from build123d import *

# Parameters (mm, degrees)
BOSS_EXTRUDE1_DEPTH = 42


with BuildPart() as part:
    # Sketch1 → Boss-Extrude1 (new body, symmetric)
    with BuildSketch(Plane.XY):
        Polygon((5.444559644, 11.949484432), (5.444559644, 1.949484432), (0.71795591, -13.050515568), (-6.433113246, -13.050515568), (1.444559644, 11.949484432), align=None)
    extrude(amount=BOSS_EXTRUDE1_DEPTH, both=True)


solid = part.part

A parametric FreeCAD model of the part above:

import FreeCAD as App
import Part
import Sketcher
Q = App.Units.Quantity

doc = App.newDocument("Part")
params = doc.addObject("Spreadsheet::Sheet", "Params")
for row, (alias, value) in enumerate([
    ("sketch1_width", "4 mm"),
    ("sketch1_height", "10 mm"),
    ("pad1_length", "84 mm"),
], start=1):
    params.set(f"A{row}", alias)
    params.set(f"B{row}", "=" + value)
    params.setAlias(f"B{row}", alias)

body = doc.addObject("PartDesign::Body", "Body")

# Sketch on XY plane
sketch1 = doc.addObject("Sketcher::SketchObject", "Sketch")
body.addObject(sketch1)
sketch1.AttachmentSupport = (doc.XY_Plane, [""])
sketch1.MapMode = "FlatFace"
sketch1.addGeometry(Part.LineSegment(App.Vector(5.44456, 1.949484, 0), App.Vector(5.44456, 11.949484, 0)), False)
sketch1.addGeometry(Part.LineSegment(App.Vector(5.44456, 11.949484, 0), App.Vector(1.44456, 11.949484, 0)), False)
sketch1.addGeometry(Part.LineSegment(App.Vector(1.44456, 11.949484, 0), App.Vector(-6.433113, -13.050516, 0)), False)
sketch1.addGeometry(Part.LineSegment(App.Vector(-6.433113, -13.050516, 0), App.Vector(0.717956, -13.050516, 0)), False)
sketch1.addGeometry(Part.LineSegment(App.Vector(0.717956, -13.050516, 0), App.Vector(5.44456, 1.949484, 0)), False)
sketch1.addConstraint(Sketcher.Constraint("Coincident", 0, 2, 1, 1))
sketch1.addConstraint(Sketcher.Constraint("Coincident", 1, 2, 2, 1))
sketch1.addConstraint(Sketcher.Constraint("Coincident", 2, 2, 3, 1))
sketch1.addConstraint(Sketcher.Constraint("Coincident", 3, 2, 4, 1))
sketch1.addConstraint(Sketcher.Constraint("Coincident", 4, 2, 0, 1))
sketch1.addConstraint(Sketcher.Constraint("Vertical", 0))
sketch1.addConstraint(Sketcher.Constraint("Horizontal", 1))
sketch1.addConstraint(Sketcher.Constraint("Horizontal", 3))
sketch1.addConstraint(Sketcher.Constraint("Parallel", 2, 4))
sketch1.addConstraint(Sketcher.Constraint("DistanceX", 1, 2, 1, 1, 4.0))
sketch1.addConstraint(Sketcher.Constraint("DistanceY", 0, 1, 0, 2, 10.0))
sketch1.addConstraint(Sketcher.Constraint("DistanceY", 2, 2, 1, 2, 25.0))
sketch1.addConstraint(Sketcher.Constraint("Angle", 2, Q("-107.49 deg")))
sketch1.addConstraint(Sketcher.Constraint("DistanceX", -1, 1, 0, 2, 5.44456))
sketch1.addConstraint(Sketcher.Constraint("DistanceY", -1, 1, 0, 2, 11.949484))
sketch1.setExpression("Constraints[9]", "Params.sketch1_width")
sketch1.setExpression("Constraints[10]", "Params.sketch1_height")
pad1 = doc.addObject("PartDesign::Pad", "Pad")
body.addObject(pad1)
pad1.Profile = sketch1
pad1.setExpression("Length", "Params.pad1_length")
pad1.Midplane = True

doc.recompute()
